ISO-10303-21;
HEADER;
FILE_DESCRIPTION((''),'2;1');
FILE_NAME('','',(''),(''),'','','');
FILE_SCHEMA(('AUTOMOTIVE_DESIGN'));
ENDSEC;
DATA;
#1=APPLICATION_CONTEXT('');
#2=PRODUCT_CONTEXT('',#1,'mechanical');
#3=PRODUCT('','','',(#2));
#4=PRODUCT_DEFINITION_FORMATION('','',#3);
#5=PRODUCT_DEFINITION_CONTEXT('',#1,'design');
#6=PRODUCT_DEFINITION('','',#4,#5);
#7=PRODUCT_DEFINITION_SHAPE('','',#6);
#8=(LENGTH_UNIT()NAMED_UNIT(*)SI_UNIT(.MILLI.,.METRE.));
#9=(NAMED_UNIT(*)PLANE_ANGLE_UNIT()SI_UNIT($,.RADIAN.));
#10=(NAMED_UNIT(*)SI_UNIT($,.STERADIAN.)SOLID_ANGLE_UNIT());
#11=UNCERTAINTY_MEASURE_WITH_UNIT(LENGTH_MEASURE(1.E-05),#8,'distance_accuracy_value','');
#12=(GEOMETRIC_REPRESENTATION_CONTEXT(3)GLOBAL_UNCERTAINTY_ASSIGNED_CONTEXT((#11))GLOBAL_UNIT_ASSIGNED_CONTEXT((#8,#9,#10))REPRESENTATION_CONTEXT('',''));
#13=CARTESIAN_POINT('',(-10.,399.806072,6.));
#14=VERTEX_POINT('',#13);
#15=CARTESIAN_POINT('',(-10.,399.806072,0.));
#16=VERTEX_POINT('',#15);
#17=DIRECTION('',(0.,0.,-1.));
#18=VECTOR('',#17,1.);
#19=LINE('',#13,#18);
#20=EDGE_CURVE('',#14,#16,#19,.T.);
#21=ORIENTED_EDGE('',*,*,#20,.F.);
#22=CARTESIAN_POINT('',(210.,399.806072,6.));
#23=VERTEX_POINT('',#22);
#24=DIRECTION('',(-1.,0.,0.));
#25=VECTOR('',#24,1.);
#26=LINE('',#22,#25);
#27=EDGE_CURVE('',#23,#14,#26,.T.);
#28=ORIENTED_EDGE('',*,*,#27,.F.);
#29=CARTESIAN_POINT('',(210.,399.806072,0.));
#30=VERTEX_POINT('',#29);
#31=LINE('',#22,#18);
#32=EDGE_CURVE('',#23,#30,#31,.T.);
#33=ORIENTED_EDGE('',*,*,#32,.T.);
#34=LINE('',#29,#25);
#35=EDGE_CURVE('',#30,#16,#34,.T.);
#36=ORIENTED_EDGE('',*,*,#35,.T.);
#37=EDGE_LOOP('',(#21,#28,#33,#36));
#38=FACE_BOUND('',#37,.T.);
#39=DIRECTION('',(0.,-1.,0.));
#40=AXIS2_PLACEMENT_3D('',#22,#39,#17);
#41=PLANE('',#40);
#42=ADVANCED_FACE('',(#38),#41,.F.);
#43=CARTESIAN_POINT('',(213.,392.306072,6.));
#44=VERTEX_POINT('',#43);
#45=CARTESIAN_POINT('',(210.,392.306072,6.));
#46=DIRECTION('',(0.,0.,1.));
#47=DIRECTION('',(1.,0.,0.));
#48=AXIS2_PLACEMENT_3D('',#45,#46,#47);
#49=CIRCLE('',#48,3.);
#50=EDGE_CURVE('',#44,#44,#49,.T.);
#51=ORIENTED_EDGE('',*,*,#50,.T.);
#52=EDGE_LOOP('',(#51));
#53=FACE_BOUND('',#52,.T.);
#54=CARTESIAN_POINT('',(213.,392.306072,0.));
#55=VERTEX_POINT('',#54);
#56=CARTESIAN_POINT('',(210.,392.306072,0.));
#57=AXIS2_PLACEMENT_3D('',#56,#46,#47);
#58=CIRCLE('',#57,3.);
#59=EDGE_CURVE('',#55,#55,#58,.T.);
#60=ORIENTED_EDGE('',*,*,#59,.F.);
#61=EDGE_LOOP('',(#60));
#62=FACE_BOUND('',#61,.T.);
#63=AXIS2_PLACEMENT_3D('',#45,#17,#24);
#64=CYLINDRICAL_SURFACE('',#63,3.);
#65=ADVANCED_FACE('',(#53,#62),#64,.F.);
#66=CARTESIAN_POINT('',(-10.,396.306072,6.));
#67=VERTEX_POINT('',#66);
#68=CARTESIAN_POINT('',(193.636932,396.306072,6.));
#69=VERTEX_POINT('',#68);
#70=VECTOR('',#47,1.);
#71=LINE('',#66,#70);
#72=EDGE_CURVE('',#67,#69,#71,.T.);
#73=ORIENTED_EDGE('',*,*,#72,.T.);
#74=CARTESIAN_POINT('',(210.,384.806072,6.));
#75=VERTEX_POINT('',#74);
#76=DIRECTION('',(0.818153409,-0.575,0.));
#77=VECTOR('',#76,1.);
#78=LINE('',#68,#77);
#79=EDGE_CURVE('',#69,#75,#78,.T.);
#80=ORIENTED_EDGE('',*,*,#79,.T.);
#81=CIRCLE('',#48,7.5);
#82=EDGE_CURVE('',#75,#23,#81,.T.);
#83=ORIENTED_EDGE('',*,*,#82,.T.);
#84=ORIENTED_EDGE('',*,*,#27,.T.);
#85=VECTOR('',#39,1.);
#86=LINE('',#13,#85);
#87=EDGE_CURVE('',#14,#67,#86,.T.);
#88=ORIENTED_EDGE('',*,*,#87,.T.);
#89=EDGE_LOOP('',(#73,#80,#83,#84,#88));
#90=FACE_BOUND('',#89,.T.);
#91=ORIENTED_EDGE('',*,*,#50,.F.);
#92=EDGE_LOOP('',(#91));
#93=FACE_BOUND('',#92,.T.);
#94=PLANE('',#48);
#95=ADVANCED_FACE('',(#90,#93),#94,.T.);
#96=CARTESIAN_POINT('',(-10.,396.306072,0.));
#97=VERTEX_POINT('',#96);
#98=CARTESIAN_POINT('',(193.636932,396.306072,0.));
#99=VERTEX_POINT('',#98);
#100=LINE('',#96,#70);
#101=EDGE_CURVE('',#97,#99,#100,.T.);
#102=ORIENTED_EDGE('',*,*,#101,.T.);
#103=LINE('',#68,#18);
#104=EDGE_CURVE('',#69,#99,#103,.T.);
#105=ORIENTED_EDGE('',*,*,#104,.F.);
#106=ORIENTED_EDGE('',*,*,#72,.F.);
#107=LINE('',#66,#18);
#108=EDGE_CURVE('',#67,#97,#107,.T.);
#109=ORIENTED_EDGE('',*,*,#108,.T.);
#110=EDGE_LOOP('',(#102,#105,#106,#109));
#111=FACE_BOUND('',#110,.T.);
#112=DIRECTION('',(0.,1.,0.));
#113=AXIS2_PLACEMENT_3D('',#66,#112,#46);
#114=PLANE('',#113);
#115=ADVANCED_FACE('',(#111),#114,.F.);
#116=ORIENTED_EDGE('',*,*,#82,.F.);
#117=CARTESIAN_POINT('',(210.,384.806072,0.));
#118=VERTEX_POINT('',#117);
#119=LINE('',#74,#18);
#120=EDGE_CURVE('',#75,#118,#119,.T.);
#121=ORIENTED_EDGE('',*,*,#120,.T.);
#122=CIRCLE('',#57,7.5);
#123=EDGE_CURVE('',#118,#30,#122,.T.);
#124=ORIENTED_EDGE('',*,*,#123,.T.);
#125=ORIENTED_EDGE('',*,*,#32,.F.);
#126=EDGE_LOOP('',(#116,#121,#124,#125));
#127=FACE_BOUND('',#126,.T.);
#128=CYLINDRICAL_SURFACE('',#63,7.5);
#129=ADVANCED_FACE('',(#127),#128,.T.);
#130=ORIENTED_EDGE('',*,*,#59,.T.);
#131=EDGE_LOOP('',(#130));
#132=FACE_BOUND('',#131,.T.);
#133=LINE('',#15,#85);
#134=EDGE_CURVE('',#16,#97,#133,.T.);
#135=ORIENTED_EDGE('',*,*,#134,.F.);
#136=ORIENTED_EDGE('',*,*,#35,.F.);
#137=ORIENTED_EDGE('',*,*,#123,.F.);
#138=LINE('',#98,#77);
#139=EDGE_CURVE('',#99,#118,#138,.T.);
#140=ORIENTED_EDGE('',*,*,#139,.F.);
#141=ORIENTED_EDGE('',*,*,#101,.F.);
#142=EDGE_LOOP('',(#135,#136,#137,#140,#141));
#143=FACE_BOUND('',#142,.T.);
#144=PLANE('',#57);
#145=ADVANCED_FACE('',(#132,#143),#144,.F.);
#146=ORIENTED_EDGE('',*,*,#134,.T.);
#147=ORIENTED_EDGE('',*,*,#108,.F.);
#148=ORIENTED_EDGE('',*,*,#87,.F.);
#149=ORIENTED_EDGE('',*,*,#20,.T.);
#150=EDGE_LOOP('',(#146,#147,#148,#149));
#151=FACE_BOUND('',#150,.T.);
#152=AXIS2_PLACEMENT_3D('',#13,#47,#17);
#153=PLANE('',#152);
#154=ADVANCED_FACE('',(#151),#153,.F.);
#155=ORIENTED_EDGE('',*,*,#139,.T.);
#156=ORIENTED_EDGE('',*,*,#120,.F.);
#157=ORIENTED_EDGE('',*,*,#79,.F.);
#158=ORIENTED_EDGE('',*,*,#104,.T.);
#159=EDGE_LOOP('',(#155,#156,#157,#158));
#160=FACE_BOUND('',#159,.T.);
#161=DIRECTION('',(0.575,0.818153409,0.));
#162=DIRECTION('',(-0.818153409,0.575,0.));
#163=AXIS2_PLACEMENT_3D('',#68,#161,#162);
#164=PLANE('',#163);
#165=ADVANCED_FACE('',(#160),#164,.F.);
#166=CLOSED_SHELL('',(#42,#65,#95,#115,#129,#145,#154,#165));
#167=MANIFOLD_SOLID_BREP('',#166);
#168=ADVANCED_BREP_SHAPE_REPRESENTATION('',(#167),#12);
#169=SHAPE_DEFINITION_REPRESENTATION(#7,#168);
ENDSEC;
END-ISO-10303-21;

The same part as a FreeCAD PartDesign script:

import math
import FreeCAD as App
import Part
import Sketcher
from FreeCAD import Vector
Q = App.Units.Quantity

doc = App.newDocument("Part")
body = doc.addObject("PartDesign::Body", "Body")

sketch1 = body.newObject("Sketcher::SketchObject", "Sketch")
sketch1.AttachmentSupport = (doc.getObject("XY_Plane"), [""])
sketch1.MapMode = "FlatFace"
sketch1.addGeometry([
    Part.LineSegment(Vector(210, 399.8, 0), Vector(-10, 399.8, 0)),
    Part.LineSegment(Vector(-10, 399.8, 0), Vector(-10, 396.3, 0)),
    Part.LineSegment(Vector(-10, 396.3, 0), Vector(193.6, 396.3, 0)),
    Part.LineSegment(Vector(193.6, 396.3, 0), Vector(210, 384.8, 0)),
    Part.ArcOfCircle(Part.Circle(Vector(210, 392.3, 0), Vector(0, 0, 1), 7.5), math.radians(-90), math.radians(90)),
    Part.Circle(Vector(210, 392.3, 0), Vector(0, 0, 1), 3),
], False)
sketch1.addConstraint([
    Sketcher.Constraint("Coincident", 0, 2, 1, 1),
    Sketcher.Constraint("Coincident", 1, 2, 2, 1),
    Sketcher.Constraint("Coincident", 2, 2, 3, 1),
    Sketcher.Constraint("Coincident", 3, 2, 4, 1),
    Sketcher.Constraint("Tangent", 4, 2, 0, 1),
    Sketcher.Constraint("Horizontal", 0),
    Sketcher.Constraint("Vertical", 1),
    Sketcher.Constraint("Horizontal", 2),
    Sketcher.Constraint("Coincident", 5, 3, 4, 3),
    Sketcher.Constraint("Vertical", 5, 3, 3, 2),
    Sketcher.Constraint("Diameter", 5, Q("6 mm")),
    Sketcher.Constraint("Radius", 4, Q("7.5 mm")),
    Sketcher.Constraint("DistanceX", 0, 2, 0, 1, Q("220 mm")),
    Sketcher.Constraint("Distance", 3, Q("20 mm")),
    Sketcher.Constraint("DistanceY", 1, 2, 1, 1, Q("3.5 mm")),
    Sketcher.Constraint("DistanceX", -1, 1, 4, 3, Q("210 mm")),
    Sketcher.Constraint("DistanceY", -1, 1, 4, 3, Q("392.306072 mm")),
])
pad1 = body.newObject("PartDesign::Pad", "Pad")
pad1.Profile = sketch1
pad1.Length = 6

doc.recompute()
